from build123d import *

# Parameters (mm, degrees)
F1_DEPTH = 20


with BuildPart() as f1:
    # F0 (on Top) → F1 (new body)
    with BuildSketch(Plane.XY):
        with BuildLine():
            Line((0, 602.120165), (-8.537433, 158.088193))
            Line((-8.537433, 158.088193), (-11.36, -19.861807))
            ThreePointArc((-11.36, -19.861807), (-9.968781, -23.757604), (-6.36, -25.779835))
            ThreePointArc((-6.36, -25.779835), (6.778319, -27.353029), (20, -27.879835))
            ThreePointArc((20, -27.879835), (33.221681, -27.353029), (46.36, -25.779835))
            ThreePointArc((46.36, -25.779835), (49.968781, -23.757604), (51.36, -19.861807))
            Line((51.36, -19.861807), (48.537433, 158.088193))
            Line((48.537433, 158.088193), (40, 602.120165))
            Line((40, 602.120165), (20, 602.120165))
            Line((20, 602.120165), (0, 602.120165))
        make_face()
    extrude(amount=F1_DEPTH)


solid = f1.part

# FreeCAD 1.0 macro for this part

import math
import FreeCAD as App
import Part
import Sketcher
Q = App.Units.Quantity

doc = App.newDocument("Part")
params = doc.addObject("Spreadsheet::Sheet", "Params")
for row, (alias, value) in enumerate([
    ("sketch1_width", "40 mm"),
    ("pad1_length", "20 mm"),
], start=1):
    params.set(f"A{row}", alias)
    params.set(f"B{row}", "=" + value)
    params.setAlias(f"B{row}", alias)

body = doc.addObject("PartDesign::Body", "Body")

# Sketch on XY plane
sketch1 = doc.addObject("Sketcher::SketchObject", "Sketch")
body.addObject(sketch1)
sketch1.AttachmentSupport = (doc.XY_Plane, [""])
sketch1.MapMode = "FlatFace"
sketch1.addGeometry(Part.LineSegment(App.Vector(0, 602, 0), App.Vector(-9, 158, 0)), False)
sketch1.addGeometry(Part.LineSegment(App.Vector(-9, 158, 0), App.Vector(-11, -20, 0)), False)
sketch1.addGeometry(Part.ArcOfCircle(Part.Circle(App.Vector(-5, -20, 0), App.Vector(0, 0, 1), 6), math.radians(179), math.radians(261)), False)
sketch1.addGeometry(Part.ArcOfCircle(Part.Circle(App.Vector(20, 139, 0), App.Vector(0, 0, 1), 167), math.radians(-99.1), math.radians(-90.01)), False)
sketch1.addGeometry(Part.ArcOfCircle(Part.Circle(App.Vector(20, 139, 0), App.Vector(0, 0, 1), 167), math.radians(-89.99), math.radians(-80.9)), False)
sketch1.addGeometry(Part.ArcOfCircle(Part.Circle(App.Vector(45, -20, 0), App.Vector(0, 0, 1), 6), math.radians(-81), math.radians(1)), False)
sketch1.addGeometry(Part.LineSegment(App.Vector(51, -20, 0), App.Vector(49, 158, 0)), False)
sketch1.addGeometry(Part.LineSegment(App.Vector(49, 158, 0), App.Vector(40, 602, 0)), False)
sketch1.addGeometry(Part.LineSegment(App.Vector(40, 602, 0), App.Vector(0, 602, 0)), False)
sketch1.addConstraint(Sketcher.Constraint("Coincident", 0, 2, 1, 1))
sketch1.addConstraint(Sketcher.Constraint("Coincident", 1, 2, 2, 1))
sketch1.addConstraint(Sketcher.Constraint("Coincident", 2, 2, 3, 1))
sketch1.addConstraint(Sketcher.Constraint("Coincident", 3, 2, 4, 1))
sketch1.addConstraint(Sketcher.Constraint("Coincident", 4, 2, 5, 1))
sketch1.addConstraint(Sketcher.Constraint("Coincident", 5, 2, 6, 1))
sketch1.addConstraint(Sketcher.Constraint("Coincident", 6, 2, 7, 1))
sketch1.addConstraint(Sketcher.Constraint("Coincident", 7, 2, 8, 1))
sketch1.addConstraint(Sketcher.Constraint("Coincident", 8, 2, 0, 1))
sketch1.addConstraint(Sketcher.Constraint("Horizontal", 8))
sketch1.addConstraint(Sketcher.Constraint("Equal", 3, 4))
sketch1.addConstraint(Sketcher.Constraint("Equal", 2, 5))
sketch1.addConstraint(Sketcher.Constraint("PointOnObject", 8, 2, -2))
sketch1.addConstraint(Sketcher.Constraint("Horizontal", 3, 3, 4, 3))
sketch1.addConstraint(Sketcher.Constraint("Horizontal", 2, 3, 5, 3))
sketch1.addConstraint(Sketcher.Constraint("Horizontal", 2, 2, 4, 2))
sketch1.addConstraint(Sketcher.Constraint("Horizontal", 1, 2, 5, 2))
sketch1.addConstraint(Sketcher.Constraint("Horizontal", 0, 2, 6, 2))
sketch1.addConstraint(Sketcher.Constraint("Equal", 1, 6))
sketch1.addConstraint(Sketcher.Constraint("Equal", 0, 7))
sketch1.addConstraint(Sketcher.Constraint("DistanceX", 8, 2, 8, 1, Q("40 mm")))
sketch1.addConstraint(Sketcher.Constraint("DistanceX", 1, 2, 2, 2, Q("5 mm")))
sketch1.addConstraint(Sketcher.Constraint("DistanceY", 3, 2, 2, 2, Q("2.1 mm")))
sketch1.addConstraint(Sketcher.Constraint("DistanceX", 1, 2, -1, 1, Q("11.36 mm")))
sketch1.addConstraint(Sketcher.Constraint("Radius", 3, Q("166.799862 mm")))
sketch1.addConstraint(Sketcher.Constraint("DistanceY", 1, 2, 0, 2, Q("177.95 mm")))
sketch1.addConstraint(Sketcher.Constraint("Radius", 2, Q("5.894693 mm")))
sketch1.addConstraint(Sketcher.Constraint("Distance", 0, Q("444.114039 mm")))
sketch1.addConstraint(Sketcher.Constraint("DistanceX", 0, 2, 4, 3, Q("28.512778 mm")))
sketch1.addConstraint(Sketcher.Constraint("DistanceY", 4, 3, 0, 2, Q("19.168168 mm")))
sketch1.addConstraint(Sketcher.Constraint("DistanceY", 2, 3, -1, 1, Q("19.953327 mm")))
sketch1.setExpression("Constraints[20]", "Params.sketch1_width")
pad1 = doc.addObject("PartDesign::Pad", "Pad")
body.addObject(pad1)
pad1.Profile = sketch1
pad1.setExpression("Length", "Params.pad1_length")

doc.recompute()
